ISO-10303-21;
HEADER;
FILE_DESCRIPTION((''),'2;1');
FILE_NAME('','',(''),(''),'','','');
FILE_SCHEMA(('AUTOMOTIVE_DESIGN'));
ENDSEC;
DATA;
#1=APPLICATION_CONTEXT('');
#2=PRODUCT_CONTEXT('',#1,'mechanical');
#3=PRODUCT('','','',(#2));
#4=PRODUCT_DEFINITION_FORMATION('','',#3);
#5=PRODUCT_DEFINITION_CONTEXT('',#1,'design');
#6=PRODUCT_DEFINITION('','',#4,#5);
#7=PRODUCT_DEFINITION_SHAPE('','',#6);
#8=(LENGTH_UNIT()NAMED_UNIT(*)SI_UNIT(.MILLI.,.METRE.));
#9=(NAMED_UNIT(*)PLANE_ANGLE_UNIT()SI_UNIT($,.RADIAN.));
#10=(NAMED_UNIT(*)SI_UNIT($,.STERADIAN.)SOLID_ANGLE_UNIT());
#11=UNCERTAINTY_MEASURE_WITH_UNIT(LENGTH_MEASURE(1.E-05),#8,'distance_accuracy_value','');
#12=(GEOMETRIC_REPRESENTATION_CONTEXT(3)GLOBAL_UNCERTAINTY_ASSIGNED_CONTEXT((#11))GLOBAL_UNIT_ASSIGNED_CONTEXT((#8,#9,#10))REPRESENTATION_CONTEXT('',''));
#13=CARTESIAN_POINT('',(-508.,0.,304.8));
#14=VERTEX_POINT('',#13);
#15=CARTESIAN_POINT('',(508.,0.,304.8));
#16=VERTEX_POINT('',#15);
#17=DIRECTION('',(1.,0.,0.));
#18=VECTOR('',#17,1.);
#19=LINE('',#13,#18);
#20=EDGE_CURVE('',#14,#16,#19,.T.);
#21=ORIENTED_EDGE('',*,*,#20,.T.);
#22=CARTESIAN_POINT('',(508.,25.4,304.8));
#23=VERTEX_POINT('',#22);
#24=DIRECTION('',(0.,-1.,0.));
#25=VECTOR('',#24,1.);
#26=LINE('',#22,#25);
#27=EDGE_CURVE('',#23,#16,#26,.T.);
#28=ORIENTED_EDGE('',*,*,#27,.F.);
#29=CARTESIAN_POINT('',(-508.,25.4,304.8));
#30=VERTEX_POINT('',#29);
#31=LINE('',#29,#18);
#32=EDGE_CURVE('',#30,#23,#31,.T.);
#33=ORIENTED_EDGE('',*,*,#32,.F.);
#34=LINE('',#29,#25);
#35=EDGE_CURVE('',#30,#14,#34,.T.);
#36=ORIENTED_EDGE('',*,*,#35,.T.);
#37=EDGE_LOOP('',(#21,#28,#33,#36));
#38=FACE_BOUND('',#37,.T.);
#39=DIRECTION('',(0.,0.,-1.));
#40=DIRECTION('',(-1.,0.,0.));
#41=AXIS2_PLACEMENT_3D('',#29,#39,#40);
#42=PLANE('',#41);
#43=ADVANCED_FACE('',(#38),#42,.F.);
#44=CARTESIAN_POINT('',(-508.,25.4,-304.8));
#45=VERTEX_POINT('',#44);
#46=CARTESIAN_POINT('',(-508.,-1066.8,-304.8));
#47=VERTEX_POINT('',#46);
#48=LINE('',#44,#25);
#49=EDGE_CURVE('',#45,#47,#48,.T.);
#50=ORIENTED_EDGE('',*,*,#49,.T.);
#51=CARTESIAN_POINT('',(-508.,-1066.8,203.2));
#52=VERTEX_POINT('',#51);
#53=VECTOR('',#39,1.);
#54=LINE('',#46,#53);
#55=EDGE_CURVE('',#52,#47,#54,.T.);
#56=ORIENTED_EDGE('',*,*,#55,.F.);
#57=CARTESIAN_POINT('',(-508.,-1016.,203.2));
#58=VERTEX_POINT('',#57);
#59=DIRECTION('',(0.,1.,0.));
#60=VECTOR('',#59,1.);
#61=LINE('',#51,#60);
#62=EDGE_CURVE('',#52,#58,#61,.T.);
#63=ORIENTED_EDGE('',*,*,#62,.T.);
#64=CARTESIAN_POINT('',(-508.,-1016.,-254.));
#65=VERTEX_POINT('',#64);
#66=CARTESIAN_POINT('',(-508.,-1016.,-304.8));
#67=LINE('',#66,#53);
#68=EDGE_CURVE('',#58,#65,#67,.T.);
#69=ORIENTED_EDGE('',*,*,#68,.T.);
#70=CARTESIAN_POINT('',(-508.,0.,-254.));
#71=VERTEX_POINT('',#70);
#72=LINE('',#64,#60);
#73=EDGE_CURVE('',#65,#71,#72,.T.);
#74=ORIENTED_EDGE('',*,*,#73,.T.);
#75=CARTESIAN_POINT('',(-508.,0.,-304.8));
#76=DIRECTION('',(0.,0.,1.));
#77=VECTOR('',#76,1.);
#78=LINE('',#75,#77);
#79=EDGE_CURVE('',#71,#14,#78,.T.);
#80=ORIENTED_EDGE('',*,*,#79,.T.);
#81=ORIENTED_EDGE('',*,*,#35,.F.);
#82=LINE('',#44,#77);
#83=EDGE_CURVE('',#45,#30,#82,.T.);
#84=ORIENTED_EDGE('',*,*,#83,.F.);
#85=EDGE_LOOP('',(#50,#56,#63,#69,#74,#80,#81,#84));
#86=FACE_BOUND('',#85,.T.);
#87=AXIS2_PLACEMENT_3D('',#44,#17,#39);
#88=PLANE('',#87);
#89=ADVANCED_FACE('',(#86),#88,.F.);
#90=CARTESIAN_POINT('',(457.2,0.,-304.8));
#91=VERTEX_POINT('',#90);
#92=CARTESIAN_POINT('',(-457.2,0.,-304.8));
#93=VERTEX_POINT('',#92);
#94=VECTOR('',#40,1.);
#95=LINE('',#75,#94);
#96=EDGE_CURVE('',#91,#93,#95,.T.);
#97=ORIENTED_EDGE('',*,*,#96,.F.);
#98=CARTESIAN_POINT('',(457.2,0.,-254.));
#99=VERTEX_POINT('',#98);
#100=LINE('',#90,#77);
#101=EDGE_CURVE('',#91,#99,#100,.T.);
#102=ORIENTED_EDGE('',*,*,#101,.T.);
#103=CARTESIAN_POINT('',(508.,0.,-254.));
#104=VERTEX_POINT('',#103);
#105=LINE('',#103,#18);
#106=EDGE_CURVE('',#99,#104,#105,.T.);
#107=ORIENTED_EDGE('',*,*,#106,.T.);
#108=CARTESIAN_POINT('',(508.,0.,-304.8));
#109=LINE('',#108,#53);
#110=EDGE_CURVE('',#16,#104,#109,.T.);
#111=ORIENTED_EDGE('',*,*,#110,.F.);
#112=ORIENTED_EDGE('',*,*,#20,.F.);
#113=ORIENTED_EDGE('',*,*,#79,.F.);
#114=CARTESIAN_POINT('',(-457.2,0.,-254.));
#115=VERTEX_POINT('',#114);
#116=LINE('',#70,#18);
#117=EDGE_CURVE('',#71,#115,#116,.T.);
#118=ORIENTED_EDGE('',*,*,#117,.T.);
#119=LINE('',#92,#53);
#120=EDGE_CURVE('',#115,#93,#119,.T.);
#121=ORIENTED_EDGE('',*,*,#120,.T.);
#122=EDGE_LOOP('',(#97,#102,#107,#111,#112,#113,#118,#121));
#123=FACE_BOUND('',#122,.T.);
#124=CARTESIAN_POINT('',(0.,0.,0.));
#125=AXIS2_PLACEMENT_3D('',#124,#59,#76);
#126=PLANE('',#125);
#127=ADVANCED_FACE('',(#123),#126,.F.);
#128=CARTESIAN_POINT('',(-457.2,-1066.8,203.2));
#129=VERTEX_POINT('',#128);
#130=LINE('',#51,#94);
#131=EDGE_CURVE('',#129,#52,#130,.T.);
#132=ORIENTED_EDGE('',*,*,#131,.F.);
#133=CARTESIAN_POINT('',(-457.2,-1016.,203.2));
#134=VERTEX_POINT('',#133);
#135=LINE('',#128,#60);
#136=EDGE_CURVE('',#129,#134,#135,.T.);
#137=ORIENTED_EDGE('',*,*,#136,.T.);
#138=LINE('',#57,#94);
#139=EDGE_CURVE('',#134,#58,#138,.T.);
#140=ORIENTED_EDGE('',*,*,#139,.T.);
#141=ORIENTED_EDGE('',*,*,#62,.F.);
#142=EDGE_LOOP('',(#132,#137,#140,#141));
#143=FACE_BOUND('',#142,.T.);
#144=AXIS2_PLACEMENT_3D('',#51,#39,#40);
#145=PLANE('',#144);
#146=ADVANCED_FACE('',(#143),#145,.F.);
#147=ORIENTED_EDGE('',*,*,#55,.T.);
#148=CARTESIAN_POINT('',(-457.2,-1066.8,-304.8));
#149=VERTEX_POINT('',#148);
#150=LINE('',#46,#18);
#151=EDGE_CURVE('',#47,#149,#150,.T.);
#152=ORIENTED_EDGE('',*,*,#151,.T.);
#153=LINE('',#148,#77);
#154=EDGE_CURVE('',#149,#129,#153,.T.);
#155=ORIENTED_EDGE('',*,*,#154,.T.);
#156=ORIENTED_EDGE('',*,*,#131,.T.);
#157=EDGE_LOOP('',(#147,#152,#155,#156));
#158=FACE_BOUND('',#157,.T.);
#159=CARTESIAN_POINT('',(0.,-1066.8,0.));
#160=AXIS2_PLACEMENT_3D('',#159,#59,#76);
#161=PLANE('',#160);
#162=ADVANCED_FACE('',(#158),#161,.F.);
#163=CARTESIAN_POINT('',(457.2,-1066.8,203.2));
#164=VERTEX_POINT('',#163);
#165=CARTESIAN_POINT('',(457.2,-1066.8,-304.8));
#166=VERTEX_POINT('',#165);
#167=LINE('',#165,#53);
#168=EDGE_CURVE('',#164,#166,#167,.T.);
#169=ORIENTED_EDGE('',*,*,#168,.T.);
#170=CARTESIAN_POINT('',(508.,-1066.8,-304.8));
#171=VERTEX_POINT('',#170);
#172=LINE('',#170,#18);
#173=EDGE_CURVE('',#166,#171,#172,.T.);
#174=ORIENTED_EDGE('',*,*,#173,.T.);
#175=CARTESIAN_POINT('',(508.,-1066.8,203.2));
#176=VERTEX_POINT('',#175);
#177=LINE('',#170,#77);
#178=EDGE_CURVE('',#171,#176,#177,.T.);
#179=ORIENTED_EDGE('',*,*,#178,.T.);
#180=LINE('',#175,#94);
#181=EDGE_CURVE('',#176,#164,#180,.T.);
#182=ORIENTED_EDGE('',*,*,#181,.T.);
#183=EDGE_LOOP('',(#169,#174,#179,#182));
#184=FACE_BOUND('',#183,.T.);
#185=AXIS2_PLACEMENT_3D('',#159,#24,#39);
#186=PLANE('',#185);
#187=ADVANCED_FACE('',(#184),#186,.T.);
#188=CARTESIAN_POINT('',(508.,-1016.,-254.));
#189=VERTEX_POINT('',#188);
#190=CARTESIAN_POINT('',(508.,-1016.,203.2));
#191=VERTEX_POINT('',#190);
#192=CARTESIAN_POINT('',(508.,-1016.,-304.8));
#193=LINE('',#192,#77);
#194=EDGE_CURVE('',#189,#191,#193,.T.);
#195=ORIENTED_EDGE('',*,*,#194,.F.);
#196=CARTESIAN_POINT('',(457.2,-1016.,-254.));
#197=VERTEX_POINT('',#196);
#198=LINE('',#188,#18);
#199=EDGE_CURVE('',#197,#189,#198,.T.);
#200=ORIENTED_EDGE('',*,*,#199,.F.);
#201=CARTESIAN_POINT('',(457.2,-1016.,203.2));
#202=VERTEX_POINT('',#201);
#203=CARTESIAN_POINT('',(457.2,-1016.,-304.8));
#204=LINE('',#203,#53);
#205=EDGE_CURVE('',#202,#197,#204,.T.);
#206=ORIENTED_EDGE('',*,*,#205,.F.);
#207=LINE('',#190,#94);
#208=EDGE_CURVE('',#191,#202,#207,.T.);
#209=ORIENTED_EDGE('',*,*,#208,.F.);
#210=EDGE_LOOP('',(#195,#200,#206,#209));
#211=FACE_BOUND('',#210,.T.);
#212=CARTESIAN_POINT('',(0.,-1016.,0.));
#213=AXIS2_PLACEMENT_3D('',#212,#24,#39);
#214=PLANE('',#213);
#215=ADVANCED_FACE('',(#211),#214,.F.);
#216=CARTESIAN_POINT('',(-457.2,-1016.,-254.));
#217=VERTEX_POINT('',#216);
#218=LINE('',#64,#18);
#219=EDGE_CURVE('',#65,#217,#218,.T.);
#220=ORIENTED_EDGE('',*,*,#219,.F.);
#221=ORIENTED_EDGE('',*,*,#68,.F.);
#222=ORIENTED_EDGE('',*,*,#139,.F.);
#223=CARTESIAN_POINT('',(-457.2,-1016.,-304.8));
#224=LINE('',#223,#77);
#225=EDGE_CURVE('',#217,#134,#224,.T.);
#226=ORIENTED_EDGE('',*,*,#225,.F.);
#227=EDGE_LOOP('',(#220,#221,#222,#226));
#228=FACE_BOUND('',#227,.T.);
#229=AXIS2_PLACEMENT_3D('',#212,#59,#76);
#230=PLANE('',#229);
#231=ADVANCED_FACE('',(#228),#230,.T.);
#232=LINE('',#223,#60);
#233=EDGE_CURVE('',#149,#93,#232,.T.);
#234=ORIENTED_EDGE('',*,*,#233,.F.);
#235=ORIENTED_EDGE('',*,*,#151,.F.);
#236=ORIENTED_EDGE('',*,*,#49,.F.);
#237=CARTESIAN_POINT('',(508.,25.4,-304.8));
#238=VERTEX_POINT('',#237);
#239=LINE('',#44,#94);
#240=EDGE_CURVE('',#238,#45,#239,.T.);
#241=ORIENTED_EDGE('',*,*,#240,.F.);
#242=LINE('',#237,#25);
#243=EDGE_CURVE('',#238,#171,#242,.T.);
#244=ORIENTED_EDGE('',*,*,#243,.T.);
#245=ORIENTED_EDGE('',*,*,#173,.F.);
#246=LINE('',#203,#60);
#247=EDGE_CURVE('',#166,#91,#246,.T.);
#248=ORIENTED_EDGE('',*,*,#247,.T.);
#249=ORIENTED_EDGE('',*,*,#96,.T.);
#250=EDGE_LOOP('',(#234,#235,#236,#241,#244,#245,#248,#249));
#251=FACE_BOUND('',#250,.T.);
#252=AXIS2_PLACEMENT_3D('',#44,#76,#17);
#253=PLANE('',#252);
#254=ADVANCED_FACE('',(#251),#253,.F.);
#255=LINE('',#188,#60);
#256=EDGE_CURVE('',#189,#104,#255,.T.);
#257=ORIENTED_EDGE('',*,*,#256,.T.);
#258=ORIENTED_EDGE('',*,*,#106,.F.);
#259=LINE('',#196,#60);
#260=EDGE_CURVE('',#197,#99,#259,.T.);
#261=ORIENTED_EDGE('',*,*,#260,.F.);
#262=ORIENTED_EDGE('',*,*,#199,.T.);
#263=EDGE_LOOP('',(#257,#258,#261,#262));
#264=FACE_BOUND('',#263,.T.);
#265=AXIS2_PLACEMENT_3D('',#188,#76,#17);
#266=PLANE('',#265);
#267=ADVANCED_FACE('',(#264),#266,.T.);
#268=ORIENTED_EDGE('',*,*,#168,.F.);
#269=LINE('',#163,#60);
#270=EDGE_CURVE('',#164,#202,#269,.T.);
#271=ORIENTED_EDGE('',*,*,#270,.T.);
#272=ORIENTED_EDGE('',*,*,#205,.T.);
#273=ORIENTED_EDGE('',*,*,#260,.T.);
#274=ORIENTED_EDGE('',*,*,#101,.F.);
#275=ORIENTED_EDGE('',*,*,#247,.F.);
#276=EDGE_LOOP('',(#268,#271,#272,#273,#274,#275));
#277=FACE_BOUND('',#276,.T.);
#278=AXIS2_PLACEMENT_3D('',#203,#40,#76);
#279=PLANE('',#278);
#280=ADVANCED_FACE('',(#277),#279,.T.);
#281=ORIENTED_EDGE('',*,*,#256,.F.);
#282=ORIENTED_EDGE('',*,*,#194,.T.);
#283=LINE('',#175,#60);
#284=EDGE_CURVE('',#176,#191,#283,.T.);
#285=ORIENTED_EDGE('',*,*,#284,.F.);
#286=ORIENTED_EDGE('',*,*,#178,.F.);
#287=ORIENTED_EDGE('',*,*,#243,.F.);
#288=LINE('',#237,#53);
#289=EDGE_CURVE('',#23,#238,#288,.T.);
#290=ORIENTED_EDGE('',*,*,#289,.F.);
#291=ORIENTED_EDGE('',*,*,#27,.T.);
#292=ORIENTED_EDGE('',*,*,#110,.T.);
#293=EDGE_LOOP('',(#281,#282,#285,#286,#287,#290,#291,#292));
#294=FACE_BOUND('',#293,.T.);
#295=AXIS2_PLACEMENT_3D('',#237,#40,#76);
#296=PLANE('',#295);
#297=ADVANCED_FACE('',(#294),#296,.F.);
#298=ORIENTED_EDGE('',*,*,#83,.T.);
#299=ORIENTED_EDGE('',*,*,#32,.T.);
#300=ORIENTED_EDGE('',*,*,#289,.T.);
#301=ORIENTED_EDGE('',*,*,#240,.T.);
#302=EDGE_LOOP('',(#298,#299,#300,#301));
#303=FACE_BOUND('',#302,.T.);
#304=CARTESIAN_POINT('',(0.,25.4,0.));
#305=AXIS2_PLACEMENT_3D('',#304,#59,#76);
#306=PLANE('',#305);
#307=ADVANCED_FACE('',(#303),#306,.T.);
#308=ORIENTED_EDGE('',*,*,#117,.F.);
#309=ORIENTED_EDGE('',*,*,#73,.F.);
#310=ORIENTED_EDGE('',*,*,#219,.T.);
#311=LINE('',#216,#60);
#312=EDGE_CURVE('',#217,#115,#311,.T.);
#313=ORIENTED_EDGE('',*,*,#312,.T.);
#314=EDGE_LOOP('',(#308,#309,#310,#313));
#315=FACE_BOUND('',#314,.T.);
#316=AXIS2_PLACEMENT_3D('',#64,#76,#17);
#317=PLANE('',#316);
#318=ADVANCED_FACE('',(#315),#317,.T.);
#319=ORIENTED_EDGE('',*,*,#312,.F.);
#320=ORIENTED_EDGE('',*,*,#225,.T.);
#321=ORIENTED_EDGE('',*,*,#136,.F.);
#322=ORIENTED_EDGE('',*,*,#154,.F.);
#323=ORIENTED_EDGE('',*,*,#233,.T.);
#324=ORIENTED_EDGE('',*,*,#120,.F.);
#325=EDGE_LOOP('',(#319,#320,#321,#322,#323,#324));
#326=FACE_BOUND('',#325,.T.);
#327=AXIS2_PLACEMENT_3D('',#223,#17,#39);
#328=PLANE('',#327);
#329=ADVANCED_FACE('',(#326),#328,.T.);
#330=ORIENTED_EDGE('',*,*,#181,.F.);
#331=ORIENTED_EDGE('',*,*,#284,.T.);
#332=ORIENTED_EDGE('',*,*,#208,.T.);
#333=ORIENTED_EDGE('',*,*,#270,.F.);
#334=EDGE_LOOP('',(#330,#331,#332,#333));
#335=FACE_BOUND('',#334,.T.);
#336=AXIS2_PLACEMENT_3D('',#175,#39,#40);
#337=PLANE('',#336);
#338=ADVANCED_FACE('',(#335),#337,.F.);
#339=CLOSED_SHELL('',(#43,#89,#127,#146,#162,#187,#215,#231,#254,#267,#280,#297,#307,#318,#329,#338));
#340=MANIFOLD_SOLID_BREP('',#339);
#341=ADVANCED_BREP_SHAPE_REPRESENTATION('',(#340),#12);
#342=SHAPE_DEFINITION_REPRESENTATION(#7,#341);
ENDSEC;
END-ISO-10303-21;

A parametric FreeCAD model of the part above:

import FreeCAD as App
import Part
import Sketcher
from FreeCAD import Vector
Q = App.Units.Quantity


def add_polygon(sketch, points):
    """Adds a closed chain of lines whose ends are joined by coincident constraints."""
    first, n = sketch.GeometryCount, len(points)
    for a, b in zip(points, points[1:] + points[:1]):
        sketch.addGeometry(Part.LineSegment(App.Vector(*a, 0), App.Vector(*b, 0)), False)
    for i in range(n):
        sketch.addConstraint(Sketcher.Constraint("Coincident", first + i, 2, first + (i + 1) % n, 1))

doc = App.newDocument("Part")
body = doc.addObject("PartDesign::Body", "Body")

sketch1 = body.newObject("Sketcher::SketchObject", "Sketch")
sketch1.AttachmentSupport = (doc.getObject("XZ_Plane"), [""])
sketch1.MapMode = "FlatFace"
add_polygon(sketch1, [(-508, -304.8), (-508, 304.8), (508, 304.8), (508, -304.8)])
sketch1.addConstraint(Sketcher.Constraint("Vertical", 0))
sketch1.addConstraint(Sketcher.Constraint("Horizontal", 1))
sketch1.addConstraint(Sketcher.Constraint("Vertical", 2))
sketch1.addConstraint(Sketcher.Constraint("Horizontal", 3))
sketch1.addConstraint(Sketcher.Constraint("Symmetric", 0, 2, 2, 2, -1, 1))
sketch1.addConstraint(Sketcher.Constraint("DistanceX", 1, 1, 1, 2, Q("40 in")))
sketch1.addConstraint(Sketcher.Constraint("DistanceY", 0, 1, 0, 2, Q("24 in")))
pad1 = body.newObject("PartDesign::Pad", "Pad")
pad1.Profile = sketch1
pad1.Length = Q("1 in")
pad1.Reversed = True

sketch2 = body.newObject("Sketcher::SketchObject", "Sketch001")
sketch2.AttachmentSupport = (doc.getObject("XZ_Plane"), [""])
sketch2.MapMode = "FlatFace"
add_polygon(sketch2, [(-508, -304.8), (-508, -254), (-457.2, -254), (-457.2, -304.8)])
add_polygon(sketch2, [(457.2, -304.8), (457.2, -254), (508, -254), (508, -304.8)])
sketch2.addConstraint(Sketcher.Constraint("Vertical", 0))
sketch2.addConstraint(Sketcher.Constraint("Horizontal", 1))
sketch2.addConstraint(Sketcher.Constraint("Vertical", 2))
sketch2.addConstraint(Sketcher.Constraint("Horizontal", 3))
sketch2.addConstraint(Sketcher.Constraint("Vertical", 4))
sketch2.addConstraint(Sketcher.Constraint("Horizontal", 5))
sketch2.addConstraint(Sketcher.Constraint("Vertical", 6))
sketch2.addConstraint(Sketcher.Constraint("Horizontal", 7))
sketch2.addConstraint(Sketcher.Constraint("Symmetric", 1, 2, 4, 2, -2))
sketch2.addConstraint(Sketcher.Constraint("Symmetric", 3, 2, 6, 2, -2))
sketch2.addConstraint(Sketcher.Constraint("Equal", 7, 0))
sketch2.addConstraint(Sketcher.Constraint("DistanceX", 1, 1, 1, 2, Q("2 in")))
sketch2.addConstraint(Sketcher.Constraint("DistanceX", 0, 2, -1, 1, Q("20 in")))
sketch2.addConstraint(Sketcher.Constraint("DistanceY", 0, 2, -1, 1, Q("10 in")))
pad2 = body.newObject("PartDesign::Pad", "Pad001")
pad2.Profile = sketch2
pad2.Length = Q("40 in")

sketch3 = body.newObject("Sketcher::SketchObject", "Sketch002")
sketch3.AttachmentSupport = (doc.getObject("XZ_Plane"), [""])
sketch3.MapMode = "FlatFace"
sketch3.AttachmentOffset = App.Placement(Vector(0, 0, 40 * 25.4), App.Rotation())
add_polygon(sketch3, [(-457.2, -304.8), (-457.2, 203.2), (-508, 203.2), (-508, -304.8)])
add_polygon(sketch3, [(508, -304.8), (508, 203.2), (457.2, 203.2), (457.2, -304.8)])
sketch3.addConstraint(Sketcher.Constraint("Vertical", 0))
sketch3.addConstraint(Sketcher.Constraint("Horizontal", 1))
sketch3.addConstraint(Sketcher.Constraint("Vertical", 2))
sketch3.addConstraint(Sketcher.Constraint("Horizontal", 3))
sketch3.addConstraint(Sketcher.Constraint("Vertical", 4))
sketch3.addConstraint(Sketcher.Constraint("Horizontal", 5))
sketch3.addConstraint(Sketcher.Constraint("Vertical", 6))
sketch3.addConstraint(Sketcher.Constraint("Horizontal", 7))
sketch3.addConstraint(Sketcher.Constraint("Symmetric", 1, 2, 4, 2, -2))
sketch3.addConstraint(Sketcher.Constraint("Symmetric", 3, 2, 6, 2, -2))
sketch3.addConstraint(Sketcher.Constraint("DistanceX", 1, 2, 1, 1, Q("2 in")))
sketch3.addConstraint(Sketcher.Constraint("DistanceY", 0, 1, 0, 2, Q("20 in")))
sketch3.addConstraint(Sketcher.Constraint("DistanceX", 0, 2, -1, 1, Q("18 in")))
sketch3.addConstraint(Sketcher.Constraint("DistanceY", -1, 1, 0, 2, Q("8 in")))
pad3 = body.newObject("PartDesign::Pad", "Pad002")
pad3.Profile = sketch3
pad3.Length = Q("2 in")

doc.recompute()
